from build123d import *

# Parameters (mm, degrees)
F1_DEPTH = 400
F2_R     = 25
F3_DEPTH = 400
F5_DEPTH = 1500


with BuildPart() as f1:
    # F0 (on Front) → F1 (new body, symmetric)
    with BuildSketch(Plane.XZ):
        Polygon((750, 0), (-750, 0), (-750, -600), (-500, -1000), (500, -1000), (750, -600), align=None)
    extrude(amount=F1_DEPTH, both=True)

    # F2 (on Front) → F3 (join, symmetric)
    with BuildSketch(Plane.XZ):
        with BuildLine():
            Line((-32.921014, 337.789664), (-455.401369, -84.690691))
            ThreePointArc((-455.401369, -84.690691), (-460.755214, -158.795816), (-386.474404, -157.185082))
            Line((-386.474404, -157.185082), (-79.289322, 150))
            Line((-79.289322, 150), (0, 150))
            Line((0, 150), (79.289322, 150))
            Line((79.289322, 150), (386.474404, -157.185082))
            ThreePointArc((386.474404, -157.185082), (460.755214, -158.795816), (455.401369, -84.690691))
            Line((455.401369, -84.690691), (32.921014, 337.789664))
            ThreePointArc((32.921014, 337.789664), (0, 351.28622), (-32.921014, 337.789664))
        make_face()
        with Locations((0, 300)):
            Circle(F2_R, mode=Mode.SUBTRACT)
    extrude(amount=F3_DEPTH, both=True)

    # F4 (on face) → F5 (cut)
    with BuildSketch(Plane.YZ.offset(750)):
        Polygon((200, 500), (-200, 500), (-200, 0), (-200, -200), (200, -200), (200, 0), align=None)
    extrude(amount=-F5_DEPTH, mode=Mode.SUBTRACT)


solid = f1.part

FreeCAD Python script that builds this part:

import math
import FreeCAD as App
import Part
import Sketcher

V = App.Vector

doc = App.newDocument("Part")
body = doc.addObject("PartDesign::Body", "Body")

# Sketch on XZ plane
sketch1 = doc.addObject("Sketcher::SketchObject", "Sketch")
body.addObject(sketch1)
sketch1.AttachmentSupport = (doc.XZ_Plane, [""])
sketch1.MapMode = "FlatFace"
sketch1.addGeometry(Part.LineSegment(V(750, 0, 0), V(-750, 0, 0)), False)
sketch1.addGeometry(Part.LineSegment(V(-750, 0, 0), V(-750, -600, 0)), False)
sketch1.addGeometry(Part.LineSegment(V(-750, -600, 0), V(-500, -1000, 0)), False)
sketch1.addGeometry(Part.LineSegment(V(-500, -1000, 0), V(500, -1000, 0)), False)
sketch1.addGeometry(Part.LineSegment(V(500, -1000, 0), V(750, -600, 0)), False)
sketch1.addGeometry(Part.LineSegment(V(750, -600, 0), V(750, 0, 0)), False)
sketch1.addConstraint(Sketcher.Constraint("Coincident", 0, 2, 1, 1))
sketch1.addConstraint(Sketcher.Constraint("Coincident", 1, 2, 2, 1))
sketch1.addConstraint(Sketcher.Constraint("Coincident", 2, 2, 3, 1))
sketch1.addConstraint(Sketcher.Constraint("Coincident", 3, 2, 4, 1))
sketch1.addConstraint(Sketcher.Constraint("Coincident", 4, 2, 5, 1))
sketch1.addConstraint(Sketcher.Constraint("Coincident", 5, 2, 0, 1))
sketch1.addConstraint(Sketcher.Constraint("Horizontal", 0))
sketch1.addConstraint(Sketcher.Constraint("Vertical", 1))
sketch1.addConstraint(Sketcher.Constraint("Horizontal", 3))
sketch1.addConstraint(Sketcher.Constraint("Vertical", 5))
sketch1.addConstraint(Sketcher.Constraint("Symmetric", 0, 2, 5, 2, -1, 1))
sketch1.addConstraint(Sketcher.Constraint("Horizontal", 1, 2, 4, 2))
sketch1.addConstraint(Sketcher.Constraint("Equal", 2, 4))
sketch1.addConstraint(Sketcher.Constraint("DistanceX", 0, 2, 0, 1, 1500.0))
sketch1.addConstraint(Sketcher.Constraint("DistanceX", 3, 1, 3, 2, 1000.0))
sketch1.addConstraint(Sketcher.Constraint("DistanceY", 1, 2, 1, 1, 600.0))
sketch1.addConstraint(Sketcher.Constraint("DistanceY", 2, 2, -1, 1, 1000.0))
pad1 = doc.addObject("PartDesign::Pad", "Pad")
body.addObject(pad1)
pad1.Profile = sketch1
pad1.Length = 800
pad1.Midplane = True

# Sketch on XZ plane
sketch2 = doc.addObject("Sketcher::SketchObject", "Sketch001")
body.addObject(sketch2)
sketch2.AttachmentSupport = (doc.XZ_Plane, [""])
sketch2.MapMode = "FlatFace"
sketch2.addGeometry(Part.LineSegment(V(-32.921014, 337.789664, 0), V(-455.401369, -84.690691, 0)), False)
sketch2.addGeometry(Part.ArcOfCircle(Part.Circle(V(-424.347965, -124.180156, 0), V(0, 0, 1), 50.236757), math.radians(128.180515), math.radians(318.929467)), False)
sketch2.addGeometry(Part.LineSegment(V(-386.474404, -157.185082, 0), V(-79.289322, 150, 0)), False)
sketch2.addGeometry(Part.LineSegment(V(-79.289322, 150, 0), V(79.289322, 150, 0)), False)
sketch2.addGeometry(Part.LineSegment(V(79.289322, 150, 0), V(386.474404, -157.185082, 0)), False)
sketch2.addGeometry(Part.ArcOfCircle(Part.Circle(V(424.347965, -124.180156, 0), V(0, 0, 1), 50.236757), math.radians(-138.929467), math.radians(51.819485)), False)
sketch2.addGeometry(Part.LineSegment(V(455.401369, -84.690691, 0), V(32.921014, 337.789664, 0)), False)
sketch2.addGeometry(Part.ArcOfCircle(Part.Circle(V(0, 304.387212, 0), V(0, 0, 1), 46.899008), math.radians(45.4159), math.radians(134.5841)), False)
sketch2.addGeometry(Part.Circle(V(0, 300, 0), V(0, 0, 1), 25), False)
sketch2.addConstraint(Sketcher.Constraint("Coincident", 0, 2, 1, 1))
sketch2.addConstraint(Sketcher.Constraint("Coincident", 1, 2, 2, 1))
sketch2.addConstraint(Sketcher.Constraint("Coincident", 2, 2, 3, 1))
sketch2.addConstraint(Sketcher.Constraint("Coincident", 3, 2, 4, 1))
sketch2.addConstraint(Sketcher.Constraint("Coincident", 4, 2, 5, 1))
sketch2.addConstraint(Sketcher.Constraint("Coincident", 5, 2, 6, 1))
sketch2.addConstraint(Sketcher.Constraint("Coincident", 6, 2, 7, 1))
sketch2.addConstraint(Sketcher.Constraint("Coincident", 7, 2, 0, 1))
sketch2.addConstraint(Sketcher.Constraint("Horizontal", 3))
sketch2.addConstraint(Sketcher.Constraint("Equal", 1, 5))
sketch2.addConstraint(Sketcher.Constraint("Symmetric", 1, 3, 5, 3, -2))
sketch2.addConstraint(Sketcher.Constraint("Symmetric", 6, 2, 7, 2, -2))
sketch2.addConstraint(Sketcher.Constraint("PointOnObject", 8, 3, -2))
sketch2.addConstraint(Sketcher.Constraint("Parallel", 0, 2))
sketch2.addConstraint(Sketcher.Constraint("Perpendicular", 2, 4))
sketch2.addConstraint(Sketcher.Constraint("Parallel", 4, 6))
sketch2.addConstraint(Sketcher.Constraint("Horizontal", 1, 2, 4, 2))
sketch2.addConstraint(Sketcher.Constraint("Horizontal", 0, 2, 5, 2))
sketch2.addConstraint(Sketcher.Constraint("Diameter", 8, 50.0))
sketch2.addConstraint(Sketcher.Constraint("DistanceY", -1, 1, 8, 3, 300.0))
sketch2.addConstraint(Sketcher.Constraint("DistanceY", -1, 1, 2, 2, 150.0))
sketch2.addConstraint(Sketcher.Constraint("Radius", 7, 46.899008))
sketch2.addConstraint(Sketcher.Constraint("Radius", 1, 50.236757))
sketch2.addConstraint(Sketcher.Constraint("Distance", 2, 434.425309))
sketch2.addConstraint(Sketcher.Constraint("DistanceX", 3, 1, 3, 2, 158.578644))
sketch2.addConstraint(Sketcher.Constraint("DistanceY", -1, 1, 7, 3, 304.387212))
sketch2.addConstraint(Sketcher.Constraint("DistanceX", 0, 2, -1, 1, 455.401369))
sketch2.addConstraint(Sketcher.Constraint("DistanceY", 0, 2, -1, 1, 84.690691))
pad2 = doc.addObject("PartDesign::Pad", "Pad001")
body.addObject(pad2)
pad2.Profile = sketch2
pad2.Length = 800
pad2.Midplane = True

# Sketch on YZ plane
sketch3 = doc.addObject("Sketcher::SketchObject", "Sketch002")
body.addObject(sketch3)
sketch3.AttachmentSupport = (doc.YZ_Plane, [""])
sketch3.MapMode = "FlatFace"
sketch3.AttachmentOffset = App.Placement(V(0, 0, 750), App.Rotation())
sketch3.addGeometry(Part.LineSegment(V(200, 500, 0), V(-200, 500, 0)), False)
sketch3.addGeometry(Part.LineSegment(V(-200, 500, 0), V(-200, -200, 0)), False)
sketch3.addGeometry(Part.LineSegment(V(-200, -200, 0), V(200, -200, 0)), False)
sketch3.addGeometry(Part.LineSegment(V(200, -200, 0), V(200, 500, 0)), False)
sketch3.addConstraint(Sketcher.Constraint("Coincident", 0, 2, 1, 1))
sketch3.addConstraint(Sketcher.Constraint("Coincident", 1, 2, 2, 1))
sketch3.addConstraint(Sketcher.Constraint("Coincident", 2, 2, 3, 1))
sketch3.addConstraint(Sketcher.Constraint("Coincident", 3, 2, 0, 1))
sketch3.addConstraint(Sketcher.Constraint("Horizontal", 0))
sketch3.addConstraint(Sketcher.Constraint("Vertical", 1))
sketch3.addConstraint(Sketcher.Constraint("Horizontal", 2))
sketch3.addConstraint(Sketcher.Constraint("Vertical", 3))
sketch3.addConstraint(Sketcher.Constraint("DistanceX", 0, 2, 0, 1, 400.0))
sketch3.addConstraint(Sketcher.Constraint("DistanceY", 1, 2, 1, 1, 700.0))
sketch3.addConstraint(Sketcher.Constraint("DistanceX", 0, 2, -1, 1, 200.0))
sketch3.addConstraint(Sketcher.Constraint("DistanceY", -1, 1, 0, 2, 500.0))
pocket1 = doc.addObject("PartDesign::Pocket", "Pocket")
body.addObject(pocket1)
pocket1.Profile = sketch3
pocket1.Length = 1500

doc.recompute()
